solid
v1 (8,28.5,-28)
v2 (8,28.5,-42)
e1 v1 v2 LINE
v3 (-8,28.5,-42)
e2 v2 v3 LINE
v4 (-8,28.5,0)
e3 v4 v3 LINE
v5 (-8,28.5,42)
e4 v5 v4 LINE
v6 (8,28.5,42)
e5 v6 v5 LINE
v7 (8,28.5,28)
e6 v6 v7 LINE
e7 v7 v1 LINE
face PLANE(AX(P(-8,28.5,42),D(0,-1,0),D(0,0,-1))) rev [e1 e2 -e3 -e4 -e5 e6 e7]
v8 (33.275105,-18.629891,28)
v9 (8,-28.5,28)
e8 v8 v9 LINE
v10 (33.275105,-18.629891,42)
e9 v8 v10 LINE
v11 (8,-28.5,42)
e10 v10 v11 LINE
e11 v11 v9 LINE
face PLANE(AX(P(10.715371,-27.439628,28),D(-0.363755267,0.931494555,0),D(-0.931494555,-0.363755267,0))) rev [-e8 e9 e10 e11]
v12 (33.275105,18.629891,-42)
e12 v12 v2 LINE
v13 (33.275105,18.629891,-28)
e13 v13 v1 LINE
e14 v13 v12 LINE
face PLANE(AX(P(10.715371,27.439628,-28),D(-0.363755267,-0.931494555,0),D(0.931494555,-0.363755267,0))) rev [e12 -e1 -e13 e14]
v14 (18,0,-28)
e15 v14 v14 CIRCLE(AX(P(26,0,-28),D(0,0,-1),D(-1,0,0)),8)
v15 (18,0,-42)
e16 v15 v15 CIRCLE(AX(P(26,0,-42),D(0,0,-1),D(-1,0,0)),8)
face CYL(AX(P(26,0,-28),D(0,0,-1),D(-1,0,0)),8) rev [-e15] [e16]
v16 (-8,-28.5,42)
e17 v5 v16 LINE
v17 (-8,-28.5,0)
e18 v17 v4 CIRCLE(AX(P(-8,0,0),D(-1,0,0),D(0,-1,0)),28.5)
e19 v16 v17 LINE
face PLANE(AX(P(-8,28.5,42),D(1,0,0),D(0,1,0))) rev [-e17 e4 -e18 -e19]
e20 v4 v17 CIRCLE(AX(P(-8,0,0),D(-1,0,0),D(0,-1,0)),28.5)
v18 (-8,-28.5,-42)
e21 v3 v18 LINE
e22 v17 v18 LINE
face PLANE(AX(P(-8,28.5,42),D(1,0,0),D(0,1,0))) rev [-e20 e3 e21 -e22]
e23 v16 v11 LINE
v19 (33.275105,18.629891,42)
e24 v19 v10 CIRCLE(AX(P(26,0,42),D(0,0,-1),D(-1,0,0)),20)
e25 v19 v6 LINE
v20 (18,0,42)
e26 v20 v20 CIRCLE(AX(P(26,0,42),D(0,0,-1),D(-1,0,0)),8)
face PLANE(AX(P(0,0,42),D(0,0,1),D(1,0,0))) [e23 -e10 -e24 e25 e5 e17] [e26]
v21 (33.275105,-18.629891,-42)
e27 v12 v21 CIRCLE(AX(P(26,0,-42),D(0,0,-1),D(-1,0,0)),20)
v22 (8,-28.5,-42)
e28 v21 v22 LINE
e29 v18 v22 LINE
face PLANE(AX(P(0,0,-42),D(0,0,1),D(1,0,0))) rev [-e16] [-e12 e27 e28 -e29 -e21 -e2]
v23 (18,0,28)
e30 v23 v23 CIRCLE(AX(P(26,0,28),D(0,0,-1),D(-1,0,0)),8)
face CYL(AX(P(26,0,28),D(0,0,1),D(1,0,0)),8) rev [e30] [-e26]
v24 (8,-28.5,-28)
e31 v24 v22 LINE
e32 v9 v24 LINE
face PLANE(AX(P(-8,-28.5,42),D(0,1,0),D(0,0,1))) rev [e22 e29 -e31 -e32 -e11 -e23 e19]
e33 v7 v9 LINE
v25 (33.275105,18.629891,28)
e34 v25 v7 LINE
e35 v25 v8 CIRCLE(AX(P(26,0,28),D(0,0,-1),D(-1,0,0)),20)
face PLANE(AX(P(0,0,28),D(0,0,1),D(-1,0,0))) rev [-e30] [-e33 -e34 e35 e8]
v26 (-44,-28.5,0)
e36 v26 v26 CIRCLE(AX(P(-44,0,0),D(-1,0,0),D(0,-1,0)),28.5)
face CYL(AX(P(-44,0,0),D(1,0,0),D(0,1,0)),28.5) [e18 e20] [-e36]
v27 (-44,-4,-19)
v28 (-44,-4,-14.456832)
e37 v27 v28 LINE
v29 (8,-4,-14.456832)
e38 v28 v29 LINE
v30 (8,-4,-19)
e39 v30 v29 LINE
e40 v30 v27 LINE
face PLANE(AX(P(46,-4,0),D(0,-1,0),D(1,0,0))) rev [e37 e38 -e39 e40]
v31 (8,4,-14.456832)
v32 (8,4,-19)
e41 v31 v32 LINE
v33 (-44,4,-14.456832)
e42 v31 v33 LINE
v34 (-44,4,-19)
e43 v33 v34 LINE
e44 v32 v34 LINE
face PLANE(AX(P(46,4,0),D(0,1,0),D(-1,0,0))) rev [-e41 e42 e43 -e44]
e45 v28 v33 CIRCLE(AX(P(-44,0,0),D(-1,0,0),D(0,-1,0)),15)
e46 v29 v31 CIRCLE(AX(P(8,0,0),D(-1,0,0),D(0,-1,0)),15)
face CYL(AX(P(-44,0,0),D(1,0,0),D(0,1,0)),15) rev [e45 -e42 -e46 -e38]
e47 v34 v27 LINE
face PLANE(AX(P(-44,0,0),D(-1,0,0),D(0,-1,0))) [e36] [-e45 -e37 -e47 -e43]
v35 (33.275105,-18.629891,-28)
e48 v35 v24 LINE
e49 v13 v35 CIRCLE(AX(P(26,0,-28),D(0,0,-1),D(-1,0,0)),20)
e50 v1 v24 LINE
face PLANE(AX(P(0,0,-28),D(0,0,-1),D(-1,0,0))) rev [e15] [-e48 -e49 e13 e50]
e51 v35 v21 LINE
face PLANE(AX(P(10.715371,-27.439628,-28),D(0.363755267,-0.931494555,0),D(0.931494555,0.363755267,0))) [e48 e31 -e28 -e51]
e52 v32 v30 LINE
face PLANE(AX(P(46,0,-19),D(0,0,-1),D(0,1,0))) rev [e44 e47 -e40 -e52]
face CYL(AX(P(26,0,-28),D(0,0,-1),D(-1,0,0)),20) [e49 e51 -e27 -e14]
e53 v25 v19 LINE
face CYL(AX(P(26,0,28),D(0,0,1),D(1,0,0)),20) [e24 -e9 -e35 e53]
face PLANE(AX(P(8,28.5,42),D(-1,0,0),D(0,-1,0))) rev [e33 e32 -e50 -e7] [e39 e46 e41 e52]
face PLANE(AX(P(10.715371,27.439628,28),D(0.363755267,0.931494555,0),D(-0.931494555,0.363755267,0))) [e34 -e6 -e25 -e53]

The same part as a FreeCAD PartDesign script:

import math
import FreeCAD as App
import Part
import Sketcher
from FreeCAD import Vector

doc = App.newDocument("Part")
body = doc.addObject("PartDesign::Body", "Body")

# Sketch on XY plane
sketch1 = body.newObject("Sketcher::SketchObject", "Sketch")
sketch1.AttachmentSupport = (doc.getObject("XY_Plane"), [""])
sketch1.MapMode = "FlatFace"
sketch1.addGeometry([
    Part.LineSegment(Vector(-8, 28, 0), Vector(-8, -28, 0)),
    Part.LineSegment(Vector(-8, -28, 0), Vector(8, -28, 0)),
    Part.LineSegment(Vector(8, -28, 0), Vector(8, 28, 0)),
    Part.LineSegment(Vector(8, 28, 0), Vector(-8, 28, 0)),
], False)
sketch1.addConstraint([
    Sketcher.Constraint("Coincident", 0, 2, 1, 1),
    Sketcher.Constraint("Coincident", 1, 2, 2, 1),
    Sketcher.Constraint("Coincident", 2, 2, 3, 1),
    Sketcher.Constraint("Coincident", 3, 2, 0, 1),
    Sketcher.Constraint("Vertical", 0),
    Sketcher.Constraint("Horizontal", 1),
    Sketcher.Constraint("Vertical", 2),
    Sketcher.Constraint("Horizontal", 3),
    Sketcher.Constraint("Symmetric", 0, 2, 2, 2, -1, 1),
    Sketcher.Constraint("DistanceX", 1, 1, 1, 2, 16.0),
    Sketcher.Constraint("DistanceY", 0, 2, 0, 1, 57.0),
])
pad1 = body.newObject("PartDesign::Pad", "Pad")
pad1.Profile = sketch1
pad1.Length = 84
pad1.Midplane = True

# Sketch on XY plane
sketch2 = body.newObject("Sketcher::SketchObject", "Sketch001")
sketch2.AttachmentSupport = (doc.getObject("XY_Plane"), [""])
sketch2.MapMode = "FlatFace"
sketch2.AttachmentOffset = App.Placement(Vector(0, 0, -42), App.Rotation())
sketch2.addGeometry([
    Part.LineSegment(Vector(8, 28, 0), Vector(33, 19, 0)),  # 0
    Part.ArcOfCircle(Part.Circle(Vector(26, 0, 0), Vector(0, 0, 1), 20), math.radians(-69), math.radians(69)),  # 1
    Part.LineSegment(Vector(33, -19, 0), Vector(8, -28, 0)),  # 2
    Part.LineSegment(Vector(8, -28, 0), Vector(8, 28, 0)),  # 3
    Part.Circle(Vector(26, 0, 0), Vector(0, 0, 1), 8),  # 4
], False)
sketch2.addConstraint([
    Sketcher.Constraint("Tangent", 0, 2, 1, 2),
    Sketcher.Constraint("Tangent", 1, 1, 2, 1),
    Sketcher.Constraint("Coincident", 2, 2, 3, 1),
    Sketcher.Constraint("Coincident", 3, 2, 0, 1),
    Sketcher.Constraint("Vertical", 3),
    Sketcher.Constraint("Coincident", 4, 3, 1, 3),
    Sketcher.Constraint("Symmetric", 0, 2, 1, 1, -1),
    Sketcher.Constraint("Diameter", 4, 16.0),
    Sketcher.Constraint("Radius", 1, 20.0),
    Sketcher.Constraint("DistanceY", 3, 1, 3, 2, 57.0),
    Sketcher.Constraint("DistanceX", -1, 1, 1, 3, 26.0),
    Sketcher.Constraint("DistanceX", -1, 1, 2, 2, 8.0),
])
pad2 = body.newObject("PartDesign::Pad", "Pad001")
pad2.Profile = sketch2
pad2.Length = 14
doc.recompute()

mirrored = body.newObject("PartDesign::Mirrored", "Mirrored")
mirrored.Originals = [pad2]
mirrored.MirrorPlane = (doc.getObject("XY_Plane"), [""])
body.Tip = mirrored

# Sketch on YZ plane
sketch3 = body.newObject("Sketcher::SketchObject", "Sketch002")
sketch3.AttachmentSupport = (doc.getObject("YZ_Plane"), [""])
sketch3.MapMode = "FlatFace"
sketch3.AttachmentOffset = App.Placement(Vector(0, 0, -8), App.Rotation())
sketch3.addGeometry([
    Part.Circle(Vector(0, 0, 0), Vector(0, 0, 1), 28),
    Part.Circle(Vector(0, 0, 0), Vector(0, 0, 1), 15),
], False)
sketch3.addConstraint([
    Sketcher.Constraint("Coincident", 0, 3, -1, 1),
    Sketcher.Constraint("Coincident", 1, 3, -1, 1),
    Sketcher.Constraint("Diameter", 0, 57.0),
    Sketcher.Constraint("Diameter", 1, 30.0),
])
pad3 = body.newObject("PartDesign::Pad", "Pad002")
pad3.Profile = sketch3
pad3.Length = 36
pad3.Reversed = True

# Sketch on YZ plane
sketch4 = body.newObject("Sketcher::SketchObject", "Sketch003")
sketch4.AttachmentSupport = (doc.getObject("YZ_Plane"), [""])
sketch4.MapMode = "FlatFace"
sketch4.AttachmentOffset = App.Placement(Vector(0, 0, 28), App.Rotation())
sketch4.addGeometry(Part.Circle(Vector(0, 0, 0), Vector(0, 0, 1), 15), False)
sketch4.addConstraint([
    Sketcher.Constraint("Coincident", 0, 3, -1, 1),
    Sketcher.Constraint("Diameter", 0, 30.0),
])
pocket1 = body.newObject("PartDesign::Pocket", "Pocket")
pocket1.Profile = sketch4
pocket1.Length = 36

# Sketch on YZ plane
sketch5 = body.newObject("Sketcher::SketchObject", "Sketch004")
sketch5.AttachmentSupport = (doc.getObject("YZ_Plane"), [""])
sketch5.MapMode = "FlatFace"
sketch5.AttachmentOffset = App.Placement(Vector(0, 0, -44), App.Rotation())
sketch5.addGeometry([
    Part.LineSegment(Vector(4, -19, 0), Vector(-4, -19, 0)),  # 0
    Part.LineSegment(Vector(-4, -19, 0), Vector(-4, -14.5, 0)),  # 1
    Part.ArcOfCircle(Part.Circle(Vector(0, 0, 0), Vector(0, 0, 1), 15), math.radians(90), math.radians(255)),  # 2
    Part.ArcOfCircle(Part.Circle(Vector(0, 0, 0), Vector(0, 0, 1), 15), math.radians(-75), math.radians(90)),  # 3
    Part.LineSegment(Vector(4, -14.5, 0), Vector(4, -19, 0)),  # 4
], False)
sketch5.addConstraint([
    Sketcher.Constraint("Coincident", 0, 2, 1, 1),
    Sketcher.Constraint("Coincident", 1, 2, 2, 2),
    Sketcher.Constraint("Tangent", 2, 1, 3, 2),
    Sketcher.Constraint("Coincident", 3, 1, 4, 1),
    Sketcher.Constraint("Coincident", 4, 2, 0, 1),
    Sketcher.Constraint("Horizontal", 0),
    Sketcher.Constraint("Vertical", 1),
    Sketcher.Constraint("Vertical", 4),
    Sketcher.Constraint("Coincident", 2, 3, -1, 1),
    Sketcher.Constraint("Equal", 2, 3),
    Sketcher.Constraint("PointOnObject", 2, 1, -2),
    Sketcher.Constraint("Horizontal", 1, 2, 3, 1),
    Sketcher.Constraint("Radius", 2, 15.0),
    Sketcher.Constraint("DistanceX", 0, 2, 0, 1, 8.0),
    Sketcher.Constraint("DistanceY", 0, 2, -1, 1, 19.0),
])
pocket2 = body.newObject("PartDesign::Pocket", "Pocket001")
pocket2.Profile = sketch5
pocket2.Type = "ThroughAll"
pocket2.Midplane = True

doc.recompute()
